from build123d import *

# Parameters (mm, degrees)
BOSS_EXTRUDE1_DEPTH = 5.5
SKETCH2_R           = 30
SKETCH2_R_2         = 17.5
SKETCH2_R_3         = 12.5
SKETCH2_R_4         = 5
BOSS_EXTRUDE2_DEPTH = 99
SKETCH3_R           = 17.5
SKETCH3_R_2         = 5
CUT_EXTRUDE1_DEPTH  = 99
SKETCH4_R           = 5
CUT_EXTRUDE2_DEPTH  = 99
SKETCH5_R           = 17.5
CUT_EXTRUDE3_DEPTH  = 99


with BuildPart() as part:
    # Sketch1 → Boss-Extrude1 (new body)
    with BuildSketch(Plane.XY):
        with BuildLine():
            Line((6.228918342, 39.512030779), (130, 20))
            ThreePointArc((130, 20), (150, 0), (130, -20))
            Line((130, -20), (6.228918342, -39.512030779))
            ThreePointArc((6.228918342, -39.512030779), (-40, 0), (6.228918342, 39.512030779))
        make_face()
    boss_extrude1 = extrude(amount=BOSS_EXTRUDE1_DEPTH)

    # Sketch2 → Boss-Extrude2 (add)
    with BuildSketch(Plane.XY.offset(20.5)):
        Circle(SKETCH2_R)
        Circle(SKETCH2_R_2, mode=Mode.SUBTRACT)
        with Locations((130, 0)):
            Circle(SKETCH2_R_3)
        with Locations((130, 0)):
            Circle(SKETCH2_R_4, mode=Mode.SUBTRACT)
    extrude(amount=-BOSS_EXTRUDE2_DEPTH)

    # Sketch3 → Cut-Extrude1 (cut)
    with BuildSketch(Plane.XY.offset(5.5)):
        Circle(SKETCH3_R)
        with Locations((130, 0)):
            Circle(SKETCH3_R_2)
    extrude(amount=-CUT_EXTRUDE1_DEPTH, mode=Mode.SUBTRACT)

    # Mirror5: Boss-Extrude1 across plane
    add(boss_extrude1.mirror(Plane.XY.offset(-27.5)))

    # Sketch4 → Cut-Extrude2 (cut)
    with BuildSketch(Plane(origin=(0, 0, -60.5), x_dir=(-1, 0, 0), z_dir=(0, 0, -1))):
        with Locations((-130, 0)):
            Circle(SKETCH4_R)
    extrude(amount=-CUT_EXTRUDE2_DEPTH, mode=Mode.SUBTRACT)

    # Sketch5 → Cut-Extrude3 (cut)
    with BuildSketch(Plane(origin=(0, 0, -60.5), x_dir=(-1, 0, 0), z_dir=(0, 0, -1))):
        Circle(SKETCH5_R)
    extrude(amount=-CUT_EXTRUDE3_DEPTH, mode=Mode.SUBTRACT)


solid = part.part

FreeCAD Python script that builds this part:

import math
import FreeCAD as App
import Part
import Sketcher
Q = App.Units.Quantity

doc = App.newDocument("Part")
body = doc.addObject("PartDesign::Body", "Body")

# Sketch on XY plane
sketch1 = body.newObject("Sketcher::SketchObject", "Sketch")
sketch1.AttachmentSupport = (doc.getObject("XY_Plane"), [""])
sketch1.MapMode = "FlatFace"
sketch1.addGeometry([
    Part.LineSegment(App.Vector(130, 20, 0), App.Vector(6, 40, 0)),
    Part.ArcOfCircle(Part.Circle(App.Vector(0, 0, 0), App.Vector(0, 0, 1), 40), math.radians(81), math.radians(279)),
    Part.LineSegment(App.Vector(6, -40, 0), App.Vector(130, -20, 0)),
    Part.ArcOfCircle(Part.Circle(App.Vector(130, 0, 0), App.Vector(0, 0, 1), 20), math.radians(-90), math.radians(90)),
], False)
sketch1.addConstraint([
    Sketcher.Constraint("Tangent", 0, 2, 1, 1),
    Sketcher.Constraint("Tangent", 1, 2, 2, 1),
    Sketcher.Constraint("Coincident", 2, 2, 3, 1),
    Sketcher.Constraint("Coincident", 3, 2, 0, 1),
    Sketcher.Constraint("Coincident", 1, 3, -1, 1),
    Sketcher.Constraint("Symmetric", 2, 2, 3, 2, -1),
    Sketcher.Constraint("Vertical", 3, 3, 2, 2),
    Sketcher.Constraint("Radius", 1, Q("40 mm")),
    Sketcher.Constraint("Radius", 3, Q("20 mm")),
    Sketcher.Constraint("DistanceX", -1, 1, 3, 3, Q("130 mm")),
])
pad1 = body.newObject("PartDesign::Pad", "Pad")
pad1.Profile = sketch1
pad1.Length = 5.5

# Sketch on XY plane
sketch2 = body.newObject("Sketcher::SketchObject", "Sketch001")
sketch2.AttachmentSupport = (doc.getObject("XY_Plane"), [""])
sketch2.MapMode = "FlatFace"
sketch2.AttachmentOffset = App.Placement(App.Vector(0, 0, 20.5), App.Rotation())
sketch2.addGeometry([
    Part.Circle(App.Vector(0, 0, 0), App.Vector(0, 0, 1), 30),
    Part.Circle(App.Vector(0, 0, 0), App.Vector(0, 0, 1), 18),
    Part.Circle(App.Vector(130, 0, 0), App.Vector(0, 0, 1), 12),
    Part.Circle(App.Vector(130, 0, 0), App.Vector(0, 0, 1), 5),
], False)
sketch2.addConstraint([
    Sketcher.Constraint("Coincident", 0, 3, -1, 1),
    Sketcher.Constraint("Coincident", 1, 3, -1, 1),
    Sketcher.Constraint("Coincident", 3, 3, 2, 3),
    Sketcher.Constraint("PointOnObject", 2, 3, -1),
    Sketcher.Constraint("Diameter", 0, Q("60 mm")),
    Sketcher.Constraint("Diameter", 1, Q("35 mm")),
    Sketcher.Constraint("Diameter", 2, Q("25 mm")),
    Sketcher.Constraint("Diameter", 3, Q("10 mm")),
    Sketcher.Constraint("DistanceX", -1, 1, 2, 3, Q("130 mm")),
])
pad2 = body.newObject("PartDesign::Pad", "Pad001")
pad2.Profile = sketch2
pad2.Length = 99
pad2.Reversed = True

# Sketch on XY plane
sketch3 = body.newObject("Sketcher::SketchObject", "Sketch002")
sketch3.AttachmentSupport = (doc.getObject("XY_Plane"), [""])
sketch3.MapMode = "FlatFace"
sketch3.AttachmentOffset = App.Placement(App.Vector(0, 0, 5.5), App.Rotation())
sketch3.addGeometry([
    Part.Circle(App.Vector(0, 0, 0), App.Vector(0, 0, 1), 18),
    Part.Circle(App.Vector(130, 0, 0), App.Vector(0, 0, 1), 5),
], False)
sketch3.addConstraint([
    Sketcher.Constraint("Coincident", 0, 3, -1, 1),
    Sketcher.Constraint("PointOnObject", 1, 3, -1),
    Sketcher.Constraint("Diameter", 0, Q("35 mm")),
    Sketcher.Constraint("Diameter", 1, Q("10 mm")),
    Sketcher.Constraint("DistanceX", -1, 1, 1, 3, Q("130 mm")),
])
pocket1 = body.newObject("PartDesign::Pocket", "Pocket")
pocket1.Profile = sketch3
pocket1.Length = 99
doc.recompute()

datumplane = body.newObject("PartDesign::Plane", "DatumPlane")
datumplane.AttachmentSupport = (doc.getObject("XY_Plane"), [""])
datumplane.MapMode = "FlatFace"
datumplane.AttachmentOffset = App.Placement(App.Vector(0, 0, -27.5), App.Rotation())
mirrored = body.newObject("PartDesign::Mirrored", "Mirrored")
mirrored.Originals = [pad1]
mirrored.MirrorPlane = (datumplane, [""])
body.Tip = mirrored

# Sketch on XY plane
sketch4 = body.newObject("Sketcher::SketchObject", "Sketch003")
sketch4.AttachmentSupport = (doc.getObject("XY_Plane"), [""])
sketch4.MapMode = "FlatFace"
sketch4.AttachmentOffset = App.Placement(App.Vector(0, 0, -60.5), App.Rotation())
sketch4.addGeometry(Part.Circle(App.Vector(130, 0, 0), App.Vector(0, 0, 1), 5), False)
sketch4.addConstraint([
    Sketcher.Constraint("PointOnObject", 0, 3, -1),
    Sketcher.Constraint("Diameter", 0, Q("10 mm")),
    Sketcher.Constraint("DistanceX", -1, 1, 0, 3, Q("130 mm")),
])
pocket2 = body.newObject("PartDesign::Pocket", "Pocket001")
pocket2.Profile = sketch4
pocket2.Length = 99
pocket2.Reversed = True

# Sketch on XY plane
sketch5 = body.newObject("Sketcher::SketchObject", "Sketch004")
sketch5.AttachmentSupport = (doc.getObject("XY_Plane"), [""])
sketch5.MapMode = "FlatFace"
sketch5.AttachmentOffset = App.Placement(App.Vector(0, 0, -60.5), App.Rotation())
sketch5.addGeometry(Part.Circle(App.Vector(0, 0, 0), App.Vector(0, 0, 1), 18), False)
sketch5.addConstraint([
    Sketcher.Constraint("Coincident", 0, 3, -1, 1),
    Sketcher.Constraint("Diameter", 0, Q("35 mm")),
])
pocket3 = body.newObject("PartDesign::Pocket", "Pocket002")
pocket3.Profile = sketch5
pocket3.Length = 99
pocket3.Reversed = True

doc.recompute()
